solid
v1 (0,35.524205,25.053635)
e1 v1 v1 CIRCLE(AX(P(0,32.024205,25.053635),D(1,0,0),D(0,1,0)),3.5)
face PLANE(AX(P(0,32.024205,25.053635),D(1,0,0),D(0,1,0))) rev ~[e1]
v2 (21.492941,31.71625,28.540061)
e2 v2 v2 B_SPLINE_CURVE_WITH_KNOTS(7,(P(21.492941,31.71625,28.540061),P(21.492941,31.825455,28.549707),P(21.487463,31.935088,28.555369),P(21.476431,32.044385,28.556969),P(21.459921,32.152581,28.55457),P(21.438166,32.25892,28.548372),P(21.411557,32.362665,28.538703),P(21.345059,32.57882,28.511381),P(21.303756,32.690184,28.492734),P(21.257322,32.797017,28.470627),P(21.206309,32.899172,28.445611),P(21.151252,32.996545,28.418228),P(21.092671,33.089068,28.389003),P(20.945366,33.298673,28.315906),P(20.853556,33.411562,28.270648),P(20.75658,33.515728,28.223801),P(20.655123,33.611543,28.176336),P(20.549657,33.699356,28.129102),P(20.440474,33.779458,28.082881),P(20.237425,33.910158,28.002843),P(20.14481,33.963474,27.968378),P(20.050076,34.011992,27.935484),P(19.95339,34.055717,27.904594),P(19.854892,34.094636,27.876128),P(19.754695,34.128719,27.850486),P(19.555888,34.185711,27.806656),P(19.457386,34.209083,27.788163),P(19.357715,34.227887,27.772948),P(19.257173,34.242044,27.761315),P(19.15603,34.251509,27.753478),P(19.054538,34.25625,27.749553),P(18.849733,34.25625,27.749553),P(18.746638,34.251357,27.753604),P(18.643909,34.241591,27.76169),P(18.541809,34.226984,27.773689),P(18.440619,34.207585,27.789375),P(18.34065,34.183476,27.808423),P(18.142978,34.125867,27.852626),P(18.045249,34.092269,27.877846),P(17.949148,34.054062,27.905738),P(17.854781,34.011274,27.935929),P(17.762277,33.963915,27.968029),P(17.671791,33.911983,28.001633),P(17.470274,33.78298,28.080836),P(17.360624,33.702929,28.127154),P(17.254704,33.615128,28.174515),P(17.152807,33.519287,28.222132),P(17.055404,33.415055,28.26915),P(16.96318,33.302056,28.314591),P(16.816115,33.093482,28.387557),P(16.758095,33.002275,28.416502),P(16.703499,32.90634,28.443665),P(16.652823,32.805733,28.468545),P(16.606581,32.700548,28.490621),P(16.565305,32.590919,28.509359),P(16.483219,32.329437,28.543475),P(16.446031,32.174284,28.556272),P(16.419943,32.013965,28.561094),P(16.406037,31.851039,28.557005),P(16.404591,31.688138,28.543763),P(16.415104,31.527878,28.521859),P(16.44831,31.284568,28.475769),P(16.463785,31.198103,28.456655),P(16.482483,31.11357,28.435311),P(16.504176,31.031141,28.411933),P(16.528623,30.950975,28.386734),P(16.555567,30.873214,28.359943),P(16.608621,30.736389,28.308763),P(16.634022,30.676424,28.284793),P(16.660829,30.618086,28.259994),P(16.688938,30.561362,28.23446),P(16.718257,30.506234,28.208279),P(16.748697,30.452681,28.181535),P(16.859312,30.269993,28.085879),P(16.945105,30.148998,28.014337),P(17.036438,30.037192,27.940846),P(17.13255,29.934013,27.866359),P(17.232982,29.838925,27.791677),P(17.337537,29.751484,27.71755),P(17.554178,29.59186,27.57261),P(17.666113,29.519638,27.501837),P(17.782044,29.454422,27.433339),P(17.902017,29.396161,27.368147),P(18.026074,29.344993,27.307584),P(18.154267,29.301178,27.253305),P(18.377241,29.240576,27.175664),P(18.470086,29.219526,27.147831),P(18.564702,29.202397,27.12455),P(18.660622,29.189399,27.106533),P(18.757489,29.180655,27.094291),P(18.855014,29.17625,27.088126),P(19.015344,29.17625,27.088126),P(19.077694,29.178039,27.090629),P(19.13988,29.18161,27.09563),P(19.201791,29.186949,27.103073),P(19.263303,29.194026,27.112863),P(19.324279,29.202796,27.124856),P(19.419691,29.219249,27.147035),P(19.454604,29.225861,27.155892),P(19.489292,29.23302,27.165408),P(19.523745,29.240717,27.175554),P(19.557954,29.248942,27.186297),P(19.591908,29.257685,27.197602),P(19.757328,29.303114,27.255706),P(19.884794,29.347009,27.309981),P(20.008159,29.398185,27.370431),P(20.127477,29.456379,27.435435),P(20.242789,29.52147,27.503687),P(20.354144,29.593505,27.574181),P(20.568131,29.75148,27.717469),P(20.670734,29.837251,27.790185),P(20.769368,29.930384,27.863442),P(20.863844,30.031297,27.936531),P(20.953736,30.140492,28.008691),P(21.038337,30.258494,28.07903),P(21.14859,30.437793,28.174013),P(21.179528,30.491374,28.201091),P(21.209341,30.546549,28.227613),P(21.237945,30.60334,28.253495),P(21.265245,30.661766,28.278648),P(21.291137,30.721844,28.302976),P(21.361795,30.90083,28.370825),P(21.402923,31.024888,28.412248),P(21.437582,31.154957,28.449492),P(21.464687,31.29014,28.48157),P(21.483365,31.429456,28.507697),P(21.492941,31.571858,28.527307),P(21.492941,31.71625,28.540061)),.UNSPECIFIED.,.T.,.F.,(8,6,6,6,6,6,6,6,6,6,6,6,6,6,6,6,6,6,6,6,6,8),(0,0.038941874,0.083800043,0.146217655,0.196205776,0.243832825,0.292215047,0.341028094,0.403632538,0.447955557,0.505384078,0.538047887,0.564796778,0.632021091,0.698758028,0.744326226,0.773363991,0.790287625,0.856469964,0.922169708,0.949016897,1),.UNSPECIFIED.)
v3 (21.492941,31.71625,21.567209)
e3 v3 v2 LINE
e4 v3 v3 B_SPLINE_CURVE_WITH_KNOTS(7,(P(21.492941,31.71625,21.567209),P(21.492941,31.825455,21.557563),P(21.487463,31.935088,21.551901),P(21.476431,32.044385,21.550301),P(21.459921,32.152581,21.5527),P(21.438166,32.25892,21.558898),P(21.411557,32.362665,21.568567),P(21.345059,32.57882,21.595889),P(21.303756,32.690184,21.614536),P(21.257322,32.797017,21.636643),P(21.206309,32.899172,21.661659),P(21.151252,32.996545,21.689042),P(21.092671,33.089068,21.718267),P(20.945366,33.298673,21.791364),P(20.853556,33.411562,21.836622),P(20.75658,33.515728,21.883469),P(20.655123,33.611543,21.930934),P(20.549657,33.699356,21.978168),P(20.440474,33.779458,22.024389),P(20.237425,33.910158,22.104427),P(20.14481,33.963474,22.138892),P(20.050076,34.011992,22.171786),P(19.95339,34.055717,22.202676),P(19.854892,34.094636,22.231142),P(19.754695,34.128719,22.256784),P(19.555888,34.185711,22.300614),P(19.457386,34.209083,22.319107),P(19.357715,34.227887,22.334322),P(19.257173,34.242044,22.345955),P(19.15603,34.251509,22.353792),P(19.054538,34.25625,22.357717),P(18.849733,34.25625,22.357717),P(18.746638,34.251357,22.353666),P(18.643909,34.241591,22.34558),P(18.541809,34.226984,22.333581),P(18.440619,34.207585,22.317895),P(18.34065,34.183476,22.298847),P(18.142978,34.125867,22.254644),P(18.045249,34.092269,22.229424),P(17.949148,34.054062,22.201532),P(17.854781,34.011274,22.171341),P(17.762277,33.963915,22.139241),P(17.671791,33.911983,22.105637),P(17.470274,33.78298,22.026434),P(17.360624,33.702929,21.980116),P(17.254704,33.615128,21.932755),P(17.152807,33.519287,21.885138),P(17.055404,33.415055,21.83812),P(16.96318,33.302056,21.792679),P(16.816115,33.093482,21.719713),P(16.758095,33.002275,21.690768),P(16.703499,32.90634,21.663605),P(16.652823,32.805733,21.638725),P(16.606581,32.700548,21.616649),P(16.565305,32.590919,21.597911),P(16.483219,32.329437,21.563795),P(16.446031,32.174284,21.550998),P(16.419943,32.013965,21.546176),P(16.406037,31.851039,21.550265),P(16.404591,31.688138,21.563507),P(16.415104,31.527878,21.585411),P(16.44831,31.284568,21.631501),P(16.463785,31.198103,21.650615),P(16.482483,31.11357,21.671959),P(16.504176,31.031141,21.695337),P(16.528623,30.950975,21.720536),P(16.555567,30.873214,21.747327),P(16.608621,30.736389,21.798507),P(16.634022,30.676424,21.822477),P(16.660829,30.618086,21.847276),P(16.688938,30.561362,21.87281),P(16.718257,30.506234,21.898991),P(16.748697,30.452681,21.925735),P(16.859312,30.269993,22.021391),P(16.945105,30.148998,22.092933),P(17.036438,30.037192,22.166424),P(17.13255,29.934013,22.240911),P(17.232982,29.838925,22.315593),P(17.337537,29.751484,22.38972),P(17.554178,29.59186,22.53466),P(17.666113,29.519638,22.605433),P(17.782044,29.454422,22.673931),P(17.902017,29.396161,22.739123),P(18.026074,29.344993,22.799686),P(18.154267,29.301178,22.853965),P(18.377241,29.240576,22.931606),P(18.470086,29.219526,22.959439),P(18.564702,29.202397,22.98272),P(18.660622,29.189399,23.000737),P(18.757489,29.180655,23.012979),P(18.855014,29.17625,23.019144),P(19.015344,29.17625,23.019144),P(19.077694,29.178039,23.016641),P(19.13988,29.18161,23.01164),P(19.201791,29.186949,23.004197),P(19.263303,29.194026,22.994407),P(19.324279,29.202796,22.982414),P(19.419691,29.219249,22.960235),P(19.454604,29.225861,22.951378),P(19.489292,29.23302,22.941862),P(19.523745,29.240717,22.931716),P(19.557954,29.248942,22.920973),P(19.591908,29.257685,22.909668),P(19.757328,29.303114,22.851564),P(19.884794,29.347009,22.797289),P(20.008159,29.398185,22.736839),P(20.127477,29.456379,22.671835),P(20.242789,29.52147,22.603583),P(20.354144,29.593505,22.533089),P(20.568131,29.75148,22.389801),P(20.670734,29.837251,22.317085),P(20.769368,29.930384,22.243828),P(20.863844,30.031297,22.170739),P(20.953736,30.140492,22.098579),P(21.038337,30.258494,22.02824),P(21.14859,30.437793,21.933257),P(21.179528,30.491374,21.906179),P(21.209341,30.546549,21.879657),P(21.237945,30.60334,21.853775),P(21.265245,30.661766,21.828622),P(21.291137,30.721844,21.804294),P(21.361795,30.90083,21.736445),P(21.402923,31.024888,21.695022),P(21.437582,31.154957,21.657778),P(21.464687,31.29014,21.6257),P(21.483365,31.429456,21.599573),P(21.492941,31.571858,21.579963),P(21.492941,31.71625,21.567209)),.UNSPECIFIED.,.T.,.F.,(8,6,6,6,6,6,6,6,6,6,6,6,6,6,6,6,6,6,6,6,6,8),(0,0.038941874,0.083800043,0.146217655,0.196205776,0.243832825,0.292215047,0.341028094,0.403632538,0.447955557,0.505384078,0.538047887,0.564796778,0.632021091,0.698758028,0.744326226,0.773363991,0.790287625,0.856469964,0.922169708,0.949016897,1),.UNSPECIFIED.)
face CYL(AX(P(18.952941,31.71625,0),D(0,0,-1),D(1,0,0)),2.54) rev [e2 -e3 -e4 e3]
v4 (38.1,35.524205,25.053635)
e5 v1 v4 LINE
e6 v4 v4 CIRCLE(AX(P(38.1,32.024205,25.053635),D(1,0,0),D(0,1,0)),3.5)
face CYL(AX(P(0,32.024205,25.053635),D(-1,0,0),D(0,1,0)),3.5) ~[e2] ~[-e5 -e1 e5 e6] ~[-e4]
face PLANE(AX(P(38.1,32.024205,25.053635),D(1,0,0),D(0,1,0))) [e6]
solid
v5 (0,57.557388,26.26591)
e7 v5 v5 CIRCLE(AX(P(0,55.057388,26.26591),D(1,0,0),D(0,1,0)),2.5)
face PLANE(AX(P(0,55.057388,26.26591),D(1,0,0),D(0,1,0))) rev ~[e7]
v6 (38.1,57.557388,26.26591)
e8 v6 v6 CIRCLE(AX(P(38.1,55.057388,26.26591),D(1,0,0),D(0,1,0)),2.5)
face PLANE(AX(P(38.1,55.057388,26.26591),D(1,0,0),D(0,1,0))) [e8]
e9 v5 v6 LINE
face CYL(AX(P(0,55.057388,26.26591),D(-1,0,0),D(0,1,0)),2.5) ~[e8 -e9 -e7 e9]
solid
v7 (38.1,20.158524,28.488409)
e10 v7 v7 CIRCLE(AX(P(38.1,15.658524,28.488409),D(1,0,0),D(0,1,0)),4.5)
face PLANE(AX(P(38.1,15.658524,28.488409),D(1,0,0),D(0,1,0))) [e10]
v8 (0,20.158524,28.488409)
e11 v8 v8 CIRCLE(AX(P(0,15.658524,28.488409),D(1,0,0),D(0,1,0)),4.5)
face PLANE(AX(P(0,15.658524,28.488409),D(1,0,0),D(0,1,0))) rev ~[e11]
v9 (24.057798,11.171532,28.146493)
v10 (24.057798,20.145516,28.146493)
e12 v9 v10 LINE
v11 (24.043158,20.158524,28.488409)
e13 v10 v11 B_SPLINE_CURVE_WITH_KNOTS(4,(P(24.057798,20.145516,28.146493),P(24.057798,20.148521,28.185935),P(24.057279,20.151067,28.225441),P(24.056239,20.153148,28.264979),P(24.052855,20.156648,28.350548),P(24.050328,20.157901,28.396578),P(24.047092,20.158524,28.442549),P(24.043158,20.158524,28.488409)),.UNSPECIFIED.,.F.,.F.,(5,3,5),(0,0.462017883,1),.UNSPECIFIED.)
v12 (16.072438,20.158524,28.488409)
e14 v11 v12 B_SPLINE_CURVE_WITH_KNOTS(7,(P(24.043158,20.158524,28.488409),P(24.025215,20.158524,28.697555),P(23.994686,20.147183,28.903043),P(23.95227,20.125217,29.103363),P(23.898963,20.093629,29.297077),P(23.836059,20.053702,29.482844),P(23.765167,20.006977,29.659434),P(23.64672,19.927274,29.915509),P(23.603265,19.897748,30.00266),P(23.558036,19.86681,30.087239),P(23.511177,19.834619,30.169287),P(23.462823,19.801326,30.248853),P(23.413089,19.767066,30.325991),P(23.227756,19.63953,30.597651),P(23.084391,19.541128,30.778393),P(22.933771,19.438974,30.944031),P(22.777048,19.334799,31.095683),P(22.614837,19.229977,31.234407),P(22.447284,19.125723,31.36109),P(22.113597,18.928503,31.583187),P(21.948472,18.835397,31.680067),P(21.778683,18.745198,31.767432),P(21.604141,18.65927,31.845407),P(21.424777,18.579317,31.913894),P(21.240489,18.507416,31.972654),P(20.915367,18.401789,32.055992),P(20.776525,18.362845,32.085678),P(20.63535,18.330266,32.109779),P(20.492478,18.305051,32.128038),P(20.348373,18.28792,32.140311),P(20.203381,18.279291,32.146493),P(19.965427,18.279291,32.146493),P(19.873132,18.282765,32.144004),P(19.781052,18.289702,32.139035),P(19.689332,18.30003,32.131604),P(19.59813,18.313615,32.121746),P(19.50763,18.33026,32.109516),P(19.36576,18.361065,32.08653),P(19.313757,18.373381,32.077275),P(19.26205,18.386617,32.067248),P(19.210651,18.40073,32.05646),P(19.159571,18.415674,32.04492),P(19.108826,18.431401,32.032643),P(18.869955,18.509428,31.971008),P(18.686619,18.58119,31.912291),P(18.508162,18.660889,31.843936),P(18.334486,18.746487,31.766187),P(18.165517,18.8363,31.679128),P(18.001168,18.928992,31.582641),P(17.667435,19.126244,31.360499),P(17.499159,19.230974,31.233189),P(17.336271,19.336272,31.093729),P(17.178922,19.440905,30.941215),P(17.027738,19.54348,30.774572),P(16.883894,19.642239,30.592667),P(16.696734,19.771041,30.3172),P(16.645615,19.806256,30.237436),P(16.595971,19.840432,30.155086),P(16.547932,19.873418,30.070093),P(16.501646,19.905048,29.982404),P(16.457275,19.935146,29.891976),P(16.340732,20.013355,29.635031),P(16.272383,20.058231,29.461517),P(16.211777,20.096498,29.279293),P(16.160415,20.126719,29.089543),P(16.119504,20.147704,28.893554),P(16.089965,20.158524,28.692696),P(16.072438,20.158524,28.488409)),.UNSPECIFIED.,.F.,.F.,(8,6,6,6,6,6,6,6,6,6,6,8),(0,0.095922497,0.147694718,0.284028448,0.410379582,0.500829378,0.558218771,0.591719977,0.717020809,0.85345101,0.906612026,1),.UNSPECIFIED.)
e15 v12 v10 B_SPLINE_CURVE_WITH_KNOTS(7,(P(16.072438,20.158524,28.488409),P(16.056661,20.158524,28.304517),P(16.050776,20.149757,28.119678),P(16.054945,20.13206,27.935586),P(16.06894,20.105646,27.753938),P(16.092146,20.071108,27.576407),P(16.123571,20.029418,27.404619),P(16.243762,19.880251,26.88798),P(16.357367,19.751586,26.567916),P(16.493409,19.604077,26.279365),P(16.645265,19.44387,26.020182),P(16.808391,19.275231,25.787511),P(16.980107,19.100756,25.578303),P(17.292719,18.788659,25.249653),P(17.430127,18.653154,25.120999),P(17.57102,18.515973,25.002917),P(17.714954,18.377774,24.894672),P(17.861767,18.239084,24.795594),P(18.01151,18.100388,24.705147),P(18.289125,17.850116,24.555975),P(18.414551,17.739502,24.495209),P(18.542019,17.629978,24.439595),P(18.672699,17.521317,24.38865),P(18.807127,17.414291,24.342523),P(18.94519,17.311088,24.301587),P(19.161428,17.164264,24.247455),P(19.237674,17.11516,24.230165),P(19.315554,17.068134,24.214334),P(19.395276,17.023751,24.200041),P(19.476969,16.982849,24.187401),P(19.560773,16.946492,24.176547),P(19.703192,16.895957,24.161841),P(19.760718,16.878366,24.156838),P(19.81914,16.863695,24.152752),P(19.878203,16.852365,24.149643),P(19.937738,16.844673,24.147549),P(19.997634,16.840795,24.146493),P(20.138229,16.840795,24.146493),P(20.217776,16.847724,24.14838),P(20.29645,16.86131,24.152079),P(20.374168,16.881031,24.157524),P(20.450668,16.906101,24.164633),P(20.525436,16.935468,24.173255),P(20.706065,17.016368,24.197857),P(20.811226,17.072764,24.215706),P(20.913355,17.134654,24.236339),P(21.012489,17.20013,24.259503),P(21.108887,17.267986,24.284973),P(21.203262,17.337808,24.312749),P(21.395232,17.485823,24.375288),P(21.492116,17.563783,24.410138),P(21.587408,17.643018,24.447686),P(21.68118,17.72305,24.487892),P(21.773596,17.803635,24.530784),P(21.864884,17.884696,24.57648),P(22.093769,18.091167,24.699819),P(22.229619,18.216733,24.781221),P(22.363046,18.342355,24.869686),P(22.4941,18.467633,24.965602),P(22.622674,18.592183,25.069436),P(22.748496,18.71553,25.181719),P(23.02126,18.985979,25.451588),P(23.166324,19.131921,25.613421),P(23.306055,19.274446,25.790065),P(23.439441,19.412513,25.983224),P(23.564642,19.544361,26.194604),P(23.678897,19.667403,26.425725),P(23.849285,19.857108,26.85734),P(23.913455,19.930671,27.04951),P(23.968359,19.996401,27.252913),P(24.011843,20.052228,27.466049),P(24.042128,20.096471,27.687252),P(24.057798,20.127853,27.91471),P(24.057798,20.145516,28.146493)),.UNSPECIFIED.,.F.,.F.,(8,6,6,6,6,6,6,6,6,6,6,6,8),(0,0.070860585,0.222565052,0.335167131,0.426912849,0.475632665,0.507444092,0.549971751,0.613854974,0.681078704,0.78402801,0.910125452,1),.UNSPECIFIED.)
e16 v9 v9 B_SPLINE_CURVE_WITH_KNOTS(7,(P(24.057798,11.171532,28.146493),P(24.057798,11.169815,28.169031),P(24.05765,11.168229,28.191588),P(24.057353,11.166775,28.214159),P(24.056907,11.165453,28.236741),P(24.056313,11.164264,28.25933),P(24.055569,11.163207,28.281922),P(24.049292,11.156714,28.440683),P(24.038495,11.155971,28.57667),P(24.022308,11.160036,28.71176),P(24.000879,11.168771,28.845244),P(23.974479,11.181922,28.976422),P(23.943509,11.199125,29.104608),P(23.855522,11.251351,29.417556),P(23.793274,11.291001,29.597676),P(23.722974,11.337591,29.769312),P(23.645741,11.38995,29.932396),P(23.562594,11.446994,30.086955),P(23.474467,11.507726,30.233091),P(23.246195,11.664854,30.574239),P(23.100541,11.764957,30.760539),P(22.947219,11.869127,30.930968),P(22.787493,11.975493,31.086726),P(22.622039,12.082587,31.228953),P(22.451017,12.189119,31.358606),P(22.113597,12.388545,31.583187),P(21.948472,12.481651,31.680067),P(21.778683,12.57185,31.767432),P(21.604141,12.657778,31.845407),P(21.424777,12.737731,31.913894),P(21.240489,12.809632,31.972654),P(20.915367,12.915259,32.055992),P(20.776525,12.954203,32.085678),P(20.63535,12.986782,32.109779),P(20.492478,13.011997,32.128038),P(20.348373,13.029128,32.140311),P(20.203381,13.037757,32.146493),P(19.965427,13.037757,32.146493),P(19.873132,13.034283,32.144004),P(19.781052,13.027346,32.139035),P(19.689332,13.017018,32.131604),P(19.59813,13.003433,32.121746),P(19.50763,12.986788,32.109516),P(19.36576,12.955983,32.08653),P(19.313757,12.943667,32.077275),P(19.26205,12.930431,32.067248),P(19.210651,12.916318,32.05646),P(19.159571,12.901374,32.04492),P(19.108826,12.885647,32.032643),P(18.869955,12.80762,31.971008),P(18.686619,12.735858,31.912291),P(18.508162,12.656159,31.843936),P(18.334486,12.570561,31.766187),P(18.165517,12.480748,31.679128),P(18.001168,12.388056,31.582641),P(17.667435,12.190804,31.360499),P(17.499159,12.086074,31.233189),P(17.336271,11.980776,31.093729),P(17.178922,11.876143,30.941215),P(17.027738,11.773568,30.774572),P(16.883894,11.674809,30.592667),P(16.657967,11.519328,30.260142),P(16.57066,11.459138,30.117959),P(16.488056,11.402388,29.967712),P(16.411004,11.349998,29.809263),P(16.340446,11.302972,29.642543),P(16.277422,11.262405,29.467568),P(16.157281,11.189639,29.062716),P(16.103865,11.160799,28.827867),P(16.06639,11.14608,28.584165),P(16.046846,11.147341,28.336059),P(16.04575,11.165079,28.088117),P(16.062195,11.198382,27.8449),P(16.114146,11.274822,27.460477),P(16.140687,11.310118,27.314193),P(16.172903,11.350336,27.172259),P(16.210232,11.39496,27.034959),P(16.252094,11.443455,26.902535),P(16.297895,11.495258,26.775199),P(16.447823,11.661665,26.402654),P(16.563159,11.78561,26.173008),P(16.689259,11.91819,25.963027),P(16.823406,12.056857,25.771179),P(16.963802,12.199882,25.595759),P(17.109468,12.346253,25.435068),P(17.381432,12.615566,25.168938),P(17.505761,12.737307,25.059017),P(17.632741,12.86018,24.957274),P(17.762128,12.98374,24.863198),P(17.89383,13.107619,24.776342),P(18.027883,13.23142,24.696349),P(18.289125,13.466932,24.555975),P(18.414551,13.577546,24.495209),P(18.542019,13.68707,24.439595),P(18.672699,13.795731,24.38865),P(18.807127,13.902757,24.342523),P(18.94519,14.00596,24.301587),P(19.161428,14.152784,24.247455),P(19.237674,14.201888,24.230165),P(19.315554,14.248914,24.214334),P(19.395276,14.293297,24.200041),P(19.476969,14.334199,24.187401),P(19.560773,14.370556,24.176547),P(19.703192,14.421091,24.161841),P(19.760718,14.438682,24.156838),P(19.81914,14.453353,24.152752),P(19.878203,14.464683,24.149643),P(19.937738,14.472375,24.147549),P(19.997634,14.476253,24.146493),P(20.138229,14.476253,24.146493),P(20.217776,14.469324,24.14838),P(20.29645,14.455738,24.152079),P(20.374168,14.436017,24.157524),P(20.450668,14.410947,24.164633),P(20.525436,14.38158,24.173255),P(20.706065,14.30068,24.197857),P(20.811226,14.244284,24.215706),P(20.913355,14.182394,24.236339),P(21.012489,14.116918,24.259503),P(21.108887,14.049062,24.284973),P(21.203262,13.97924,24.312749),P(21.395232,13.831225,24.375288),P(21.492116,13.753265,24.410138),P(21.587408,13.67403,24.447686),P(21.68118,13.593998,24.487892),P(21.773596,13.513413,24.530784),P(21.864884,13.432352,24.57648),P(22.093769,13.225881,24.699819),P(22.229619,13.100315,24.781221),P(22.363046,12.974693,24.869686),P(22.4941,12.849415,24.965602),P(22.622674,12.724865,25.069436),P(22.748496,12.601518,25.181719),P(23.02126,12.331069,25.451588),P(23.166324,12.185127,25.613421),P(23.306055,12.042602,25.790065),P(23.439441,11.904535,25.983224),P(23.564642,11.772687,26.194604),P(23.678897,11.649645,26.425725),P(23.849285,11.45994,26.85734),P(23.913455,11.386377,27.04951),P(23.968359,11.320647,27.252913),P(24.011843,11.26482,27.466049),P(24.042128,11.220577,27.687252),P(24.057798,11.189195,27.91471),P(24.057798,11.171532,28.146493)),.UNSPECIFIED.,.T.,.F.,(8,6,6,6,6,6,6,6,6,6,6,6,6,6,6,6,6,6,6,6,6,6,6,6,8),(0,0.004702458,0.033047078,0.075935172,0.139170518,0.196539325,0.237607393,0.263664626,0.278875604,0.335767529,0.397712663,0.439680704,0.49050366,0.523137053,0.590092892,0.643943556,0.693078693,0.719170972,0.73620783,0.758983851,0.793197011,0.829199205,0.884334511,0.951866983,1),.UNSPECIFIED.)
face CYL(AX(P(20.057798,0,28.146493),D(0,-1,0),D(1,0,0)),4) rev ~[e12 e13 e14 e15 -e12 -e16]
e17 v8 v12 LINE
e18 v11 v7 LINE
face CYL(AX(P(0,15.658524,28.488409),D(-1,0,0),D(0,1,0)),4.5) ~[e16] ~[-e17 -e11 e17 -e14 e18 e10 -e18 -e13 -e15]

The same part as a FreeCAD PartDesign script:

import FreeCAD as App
import Part
import Sketcher

doc = App.newDocument("Part")
body = doc.addObject("PartDesign::Body", "Body")
body.AllowCompound = True

sketch1 = body.newObject("Sketcher::SketchObject", "Sketch")
sketch1.AttachmentSupport = (doc.getObject("YZ_Plane"), [""])
sketch1.MapMode = "FlatFace"
sketch1.addGeometry(Part.Circle(App.Vector(32, 25.1, 0), App.Vector(0, 0, 1), 3.5), False)
sketch1.addGeometry(Part.Circle(App.Vector(55.1, 26.3, 0), App.Vector(0, 0, 1), 2.5), False)
sketch1.addGeometry(Part.Circle(App.Vector(15.7, 28.5, 0), App.Vector(0, 0, 1), 4.5), False)
sketch1.addConstraint(Sketcher.Constraint("Diameter", 0, 7.0))
sketch1.addConstraint(Sketcher.Constraint("Diameter", 1, 5.0))
sketch1.addConstraint(Sketcher.Constraint("Diameter", 2, 9.0))
sketch1.addConstraint(Sketcher.Constraint("DistanceY", 1, 3, 2, 3, 2.222499))
sketch1.addConstraint(Sketcher.Constraint("DistanceX", -1, 1, 1, 3, 55.057388))
sketch1.addConstraint(Sketcher.Constraint("DistanceY", -1, 1, 1, 3, 26.26591))
sketch1.addConstraint(Sketcher.Constraint("DistanceX", 2, 3, 0, 3, 16.365681))
sketch1.addConstraint(Sketcher.Constraint("DistanceX", -1, 1, 0, 3, 32.024205))
sketch1.addConstraint(Sketcher.Constraint("DistanceY", -1, 1, 0, 3, 25.053635))
pad1 = body.newObject("PartDesign::Pad", "Pad")
pad1.Profile = sketch1
pad1.Length = 38.1

sketch2 = body.newObject("Sketcher::SketchObject", "Sketch001")
sketch2.AttachmentSupport = (doc.getObject("XZ_Plane"), [""])
sketch2.MapMode = "FlatFace"
sketch2.addGeometry(Part.Circle(App.Vector(20.1, 28.1, 0), App.Vector(0, 0, 1), 4), False)
sketch2.addConstraint(Sketcher.Constraint("Diameter", 0, 8.0))
sketch2.addConstraint(Sketcher.Constraint("DistanceX", -1, 1, 0, 3, 20.057798))
sketch2.addConstraint(Sketcher.Constraint("DistanceY", -1, 1, 0, 3, 28.146493))
pocket1 = body.newObject("PartDesign::Pocket", "Pocket")
pocket1.Profile = sketch2
pocket1.Length = 24.765

sketch3 = body.newObject("Sketcher::SketchObject", "Sketch002")
sketch3.AttachmentSupport = (doc.getObject("XY_Plane"), [""])
sketch3.MapMode = "FlatFace"
sketch3.addGeometry(Part.Circle(App.Vector(19, 31.7, 0), App.Vector(0, 0, 1), 2.5), False)
sketch3.addConstraint(Sketcher.Constraint("Diameter", 0, 5.08))
sketch3.addConstraint(Sketcher.Constraint("DistanceX", -1, 1, 0, 3, 18.952941))
sketch3.addConstraint(Sketcher.Constraint("DistanceY", -1, 1, 0, 3, 31.71625))
pocket2 = body.newObject("PartDesign::Pocket", "Pocket001")
pocket2.Profile = sketch3
pocket2.Type = "ThroughAll"
pocket2.Reversed = True

doc.recompute()
